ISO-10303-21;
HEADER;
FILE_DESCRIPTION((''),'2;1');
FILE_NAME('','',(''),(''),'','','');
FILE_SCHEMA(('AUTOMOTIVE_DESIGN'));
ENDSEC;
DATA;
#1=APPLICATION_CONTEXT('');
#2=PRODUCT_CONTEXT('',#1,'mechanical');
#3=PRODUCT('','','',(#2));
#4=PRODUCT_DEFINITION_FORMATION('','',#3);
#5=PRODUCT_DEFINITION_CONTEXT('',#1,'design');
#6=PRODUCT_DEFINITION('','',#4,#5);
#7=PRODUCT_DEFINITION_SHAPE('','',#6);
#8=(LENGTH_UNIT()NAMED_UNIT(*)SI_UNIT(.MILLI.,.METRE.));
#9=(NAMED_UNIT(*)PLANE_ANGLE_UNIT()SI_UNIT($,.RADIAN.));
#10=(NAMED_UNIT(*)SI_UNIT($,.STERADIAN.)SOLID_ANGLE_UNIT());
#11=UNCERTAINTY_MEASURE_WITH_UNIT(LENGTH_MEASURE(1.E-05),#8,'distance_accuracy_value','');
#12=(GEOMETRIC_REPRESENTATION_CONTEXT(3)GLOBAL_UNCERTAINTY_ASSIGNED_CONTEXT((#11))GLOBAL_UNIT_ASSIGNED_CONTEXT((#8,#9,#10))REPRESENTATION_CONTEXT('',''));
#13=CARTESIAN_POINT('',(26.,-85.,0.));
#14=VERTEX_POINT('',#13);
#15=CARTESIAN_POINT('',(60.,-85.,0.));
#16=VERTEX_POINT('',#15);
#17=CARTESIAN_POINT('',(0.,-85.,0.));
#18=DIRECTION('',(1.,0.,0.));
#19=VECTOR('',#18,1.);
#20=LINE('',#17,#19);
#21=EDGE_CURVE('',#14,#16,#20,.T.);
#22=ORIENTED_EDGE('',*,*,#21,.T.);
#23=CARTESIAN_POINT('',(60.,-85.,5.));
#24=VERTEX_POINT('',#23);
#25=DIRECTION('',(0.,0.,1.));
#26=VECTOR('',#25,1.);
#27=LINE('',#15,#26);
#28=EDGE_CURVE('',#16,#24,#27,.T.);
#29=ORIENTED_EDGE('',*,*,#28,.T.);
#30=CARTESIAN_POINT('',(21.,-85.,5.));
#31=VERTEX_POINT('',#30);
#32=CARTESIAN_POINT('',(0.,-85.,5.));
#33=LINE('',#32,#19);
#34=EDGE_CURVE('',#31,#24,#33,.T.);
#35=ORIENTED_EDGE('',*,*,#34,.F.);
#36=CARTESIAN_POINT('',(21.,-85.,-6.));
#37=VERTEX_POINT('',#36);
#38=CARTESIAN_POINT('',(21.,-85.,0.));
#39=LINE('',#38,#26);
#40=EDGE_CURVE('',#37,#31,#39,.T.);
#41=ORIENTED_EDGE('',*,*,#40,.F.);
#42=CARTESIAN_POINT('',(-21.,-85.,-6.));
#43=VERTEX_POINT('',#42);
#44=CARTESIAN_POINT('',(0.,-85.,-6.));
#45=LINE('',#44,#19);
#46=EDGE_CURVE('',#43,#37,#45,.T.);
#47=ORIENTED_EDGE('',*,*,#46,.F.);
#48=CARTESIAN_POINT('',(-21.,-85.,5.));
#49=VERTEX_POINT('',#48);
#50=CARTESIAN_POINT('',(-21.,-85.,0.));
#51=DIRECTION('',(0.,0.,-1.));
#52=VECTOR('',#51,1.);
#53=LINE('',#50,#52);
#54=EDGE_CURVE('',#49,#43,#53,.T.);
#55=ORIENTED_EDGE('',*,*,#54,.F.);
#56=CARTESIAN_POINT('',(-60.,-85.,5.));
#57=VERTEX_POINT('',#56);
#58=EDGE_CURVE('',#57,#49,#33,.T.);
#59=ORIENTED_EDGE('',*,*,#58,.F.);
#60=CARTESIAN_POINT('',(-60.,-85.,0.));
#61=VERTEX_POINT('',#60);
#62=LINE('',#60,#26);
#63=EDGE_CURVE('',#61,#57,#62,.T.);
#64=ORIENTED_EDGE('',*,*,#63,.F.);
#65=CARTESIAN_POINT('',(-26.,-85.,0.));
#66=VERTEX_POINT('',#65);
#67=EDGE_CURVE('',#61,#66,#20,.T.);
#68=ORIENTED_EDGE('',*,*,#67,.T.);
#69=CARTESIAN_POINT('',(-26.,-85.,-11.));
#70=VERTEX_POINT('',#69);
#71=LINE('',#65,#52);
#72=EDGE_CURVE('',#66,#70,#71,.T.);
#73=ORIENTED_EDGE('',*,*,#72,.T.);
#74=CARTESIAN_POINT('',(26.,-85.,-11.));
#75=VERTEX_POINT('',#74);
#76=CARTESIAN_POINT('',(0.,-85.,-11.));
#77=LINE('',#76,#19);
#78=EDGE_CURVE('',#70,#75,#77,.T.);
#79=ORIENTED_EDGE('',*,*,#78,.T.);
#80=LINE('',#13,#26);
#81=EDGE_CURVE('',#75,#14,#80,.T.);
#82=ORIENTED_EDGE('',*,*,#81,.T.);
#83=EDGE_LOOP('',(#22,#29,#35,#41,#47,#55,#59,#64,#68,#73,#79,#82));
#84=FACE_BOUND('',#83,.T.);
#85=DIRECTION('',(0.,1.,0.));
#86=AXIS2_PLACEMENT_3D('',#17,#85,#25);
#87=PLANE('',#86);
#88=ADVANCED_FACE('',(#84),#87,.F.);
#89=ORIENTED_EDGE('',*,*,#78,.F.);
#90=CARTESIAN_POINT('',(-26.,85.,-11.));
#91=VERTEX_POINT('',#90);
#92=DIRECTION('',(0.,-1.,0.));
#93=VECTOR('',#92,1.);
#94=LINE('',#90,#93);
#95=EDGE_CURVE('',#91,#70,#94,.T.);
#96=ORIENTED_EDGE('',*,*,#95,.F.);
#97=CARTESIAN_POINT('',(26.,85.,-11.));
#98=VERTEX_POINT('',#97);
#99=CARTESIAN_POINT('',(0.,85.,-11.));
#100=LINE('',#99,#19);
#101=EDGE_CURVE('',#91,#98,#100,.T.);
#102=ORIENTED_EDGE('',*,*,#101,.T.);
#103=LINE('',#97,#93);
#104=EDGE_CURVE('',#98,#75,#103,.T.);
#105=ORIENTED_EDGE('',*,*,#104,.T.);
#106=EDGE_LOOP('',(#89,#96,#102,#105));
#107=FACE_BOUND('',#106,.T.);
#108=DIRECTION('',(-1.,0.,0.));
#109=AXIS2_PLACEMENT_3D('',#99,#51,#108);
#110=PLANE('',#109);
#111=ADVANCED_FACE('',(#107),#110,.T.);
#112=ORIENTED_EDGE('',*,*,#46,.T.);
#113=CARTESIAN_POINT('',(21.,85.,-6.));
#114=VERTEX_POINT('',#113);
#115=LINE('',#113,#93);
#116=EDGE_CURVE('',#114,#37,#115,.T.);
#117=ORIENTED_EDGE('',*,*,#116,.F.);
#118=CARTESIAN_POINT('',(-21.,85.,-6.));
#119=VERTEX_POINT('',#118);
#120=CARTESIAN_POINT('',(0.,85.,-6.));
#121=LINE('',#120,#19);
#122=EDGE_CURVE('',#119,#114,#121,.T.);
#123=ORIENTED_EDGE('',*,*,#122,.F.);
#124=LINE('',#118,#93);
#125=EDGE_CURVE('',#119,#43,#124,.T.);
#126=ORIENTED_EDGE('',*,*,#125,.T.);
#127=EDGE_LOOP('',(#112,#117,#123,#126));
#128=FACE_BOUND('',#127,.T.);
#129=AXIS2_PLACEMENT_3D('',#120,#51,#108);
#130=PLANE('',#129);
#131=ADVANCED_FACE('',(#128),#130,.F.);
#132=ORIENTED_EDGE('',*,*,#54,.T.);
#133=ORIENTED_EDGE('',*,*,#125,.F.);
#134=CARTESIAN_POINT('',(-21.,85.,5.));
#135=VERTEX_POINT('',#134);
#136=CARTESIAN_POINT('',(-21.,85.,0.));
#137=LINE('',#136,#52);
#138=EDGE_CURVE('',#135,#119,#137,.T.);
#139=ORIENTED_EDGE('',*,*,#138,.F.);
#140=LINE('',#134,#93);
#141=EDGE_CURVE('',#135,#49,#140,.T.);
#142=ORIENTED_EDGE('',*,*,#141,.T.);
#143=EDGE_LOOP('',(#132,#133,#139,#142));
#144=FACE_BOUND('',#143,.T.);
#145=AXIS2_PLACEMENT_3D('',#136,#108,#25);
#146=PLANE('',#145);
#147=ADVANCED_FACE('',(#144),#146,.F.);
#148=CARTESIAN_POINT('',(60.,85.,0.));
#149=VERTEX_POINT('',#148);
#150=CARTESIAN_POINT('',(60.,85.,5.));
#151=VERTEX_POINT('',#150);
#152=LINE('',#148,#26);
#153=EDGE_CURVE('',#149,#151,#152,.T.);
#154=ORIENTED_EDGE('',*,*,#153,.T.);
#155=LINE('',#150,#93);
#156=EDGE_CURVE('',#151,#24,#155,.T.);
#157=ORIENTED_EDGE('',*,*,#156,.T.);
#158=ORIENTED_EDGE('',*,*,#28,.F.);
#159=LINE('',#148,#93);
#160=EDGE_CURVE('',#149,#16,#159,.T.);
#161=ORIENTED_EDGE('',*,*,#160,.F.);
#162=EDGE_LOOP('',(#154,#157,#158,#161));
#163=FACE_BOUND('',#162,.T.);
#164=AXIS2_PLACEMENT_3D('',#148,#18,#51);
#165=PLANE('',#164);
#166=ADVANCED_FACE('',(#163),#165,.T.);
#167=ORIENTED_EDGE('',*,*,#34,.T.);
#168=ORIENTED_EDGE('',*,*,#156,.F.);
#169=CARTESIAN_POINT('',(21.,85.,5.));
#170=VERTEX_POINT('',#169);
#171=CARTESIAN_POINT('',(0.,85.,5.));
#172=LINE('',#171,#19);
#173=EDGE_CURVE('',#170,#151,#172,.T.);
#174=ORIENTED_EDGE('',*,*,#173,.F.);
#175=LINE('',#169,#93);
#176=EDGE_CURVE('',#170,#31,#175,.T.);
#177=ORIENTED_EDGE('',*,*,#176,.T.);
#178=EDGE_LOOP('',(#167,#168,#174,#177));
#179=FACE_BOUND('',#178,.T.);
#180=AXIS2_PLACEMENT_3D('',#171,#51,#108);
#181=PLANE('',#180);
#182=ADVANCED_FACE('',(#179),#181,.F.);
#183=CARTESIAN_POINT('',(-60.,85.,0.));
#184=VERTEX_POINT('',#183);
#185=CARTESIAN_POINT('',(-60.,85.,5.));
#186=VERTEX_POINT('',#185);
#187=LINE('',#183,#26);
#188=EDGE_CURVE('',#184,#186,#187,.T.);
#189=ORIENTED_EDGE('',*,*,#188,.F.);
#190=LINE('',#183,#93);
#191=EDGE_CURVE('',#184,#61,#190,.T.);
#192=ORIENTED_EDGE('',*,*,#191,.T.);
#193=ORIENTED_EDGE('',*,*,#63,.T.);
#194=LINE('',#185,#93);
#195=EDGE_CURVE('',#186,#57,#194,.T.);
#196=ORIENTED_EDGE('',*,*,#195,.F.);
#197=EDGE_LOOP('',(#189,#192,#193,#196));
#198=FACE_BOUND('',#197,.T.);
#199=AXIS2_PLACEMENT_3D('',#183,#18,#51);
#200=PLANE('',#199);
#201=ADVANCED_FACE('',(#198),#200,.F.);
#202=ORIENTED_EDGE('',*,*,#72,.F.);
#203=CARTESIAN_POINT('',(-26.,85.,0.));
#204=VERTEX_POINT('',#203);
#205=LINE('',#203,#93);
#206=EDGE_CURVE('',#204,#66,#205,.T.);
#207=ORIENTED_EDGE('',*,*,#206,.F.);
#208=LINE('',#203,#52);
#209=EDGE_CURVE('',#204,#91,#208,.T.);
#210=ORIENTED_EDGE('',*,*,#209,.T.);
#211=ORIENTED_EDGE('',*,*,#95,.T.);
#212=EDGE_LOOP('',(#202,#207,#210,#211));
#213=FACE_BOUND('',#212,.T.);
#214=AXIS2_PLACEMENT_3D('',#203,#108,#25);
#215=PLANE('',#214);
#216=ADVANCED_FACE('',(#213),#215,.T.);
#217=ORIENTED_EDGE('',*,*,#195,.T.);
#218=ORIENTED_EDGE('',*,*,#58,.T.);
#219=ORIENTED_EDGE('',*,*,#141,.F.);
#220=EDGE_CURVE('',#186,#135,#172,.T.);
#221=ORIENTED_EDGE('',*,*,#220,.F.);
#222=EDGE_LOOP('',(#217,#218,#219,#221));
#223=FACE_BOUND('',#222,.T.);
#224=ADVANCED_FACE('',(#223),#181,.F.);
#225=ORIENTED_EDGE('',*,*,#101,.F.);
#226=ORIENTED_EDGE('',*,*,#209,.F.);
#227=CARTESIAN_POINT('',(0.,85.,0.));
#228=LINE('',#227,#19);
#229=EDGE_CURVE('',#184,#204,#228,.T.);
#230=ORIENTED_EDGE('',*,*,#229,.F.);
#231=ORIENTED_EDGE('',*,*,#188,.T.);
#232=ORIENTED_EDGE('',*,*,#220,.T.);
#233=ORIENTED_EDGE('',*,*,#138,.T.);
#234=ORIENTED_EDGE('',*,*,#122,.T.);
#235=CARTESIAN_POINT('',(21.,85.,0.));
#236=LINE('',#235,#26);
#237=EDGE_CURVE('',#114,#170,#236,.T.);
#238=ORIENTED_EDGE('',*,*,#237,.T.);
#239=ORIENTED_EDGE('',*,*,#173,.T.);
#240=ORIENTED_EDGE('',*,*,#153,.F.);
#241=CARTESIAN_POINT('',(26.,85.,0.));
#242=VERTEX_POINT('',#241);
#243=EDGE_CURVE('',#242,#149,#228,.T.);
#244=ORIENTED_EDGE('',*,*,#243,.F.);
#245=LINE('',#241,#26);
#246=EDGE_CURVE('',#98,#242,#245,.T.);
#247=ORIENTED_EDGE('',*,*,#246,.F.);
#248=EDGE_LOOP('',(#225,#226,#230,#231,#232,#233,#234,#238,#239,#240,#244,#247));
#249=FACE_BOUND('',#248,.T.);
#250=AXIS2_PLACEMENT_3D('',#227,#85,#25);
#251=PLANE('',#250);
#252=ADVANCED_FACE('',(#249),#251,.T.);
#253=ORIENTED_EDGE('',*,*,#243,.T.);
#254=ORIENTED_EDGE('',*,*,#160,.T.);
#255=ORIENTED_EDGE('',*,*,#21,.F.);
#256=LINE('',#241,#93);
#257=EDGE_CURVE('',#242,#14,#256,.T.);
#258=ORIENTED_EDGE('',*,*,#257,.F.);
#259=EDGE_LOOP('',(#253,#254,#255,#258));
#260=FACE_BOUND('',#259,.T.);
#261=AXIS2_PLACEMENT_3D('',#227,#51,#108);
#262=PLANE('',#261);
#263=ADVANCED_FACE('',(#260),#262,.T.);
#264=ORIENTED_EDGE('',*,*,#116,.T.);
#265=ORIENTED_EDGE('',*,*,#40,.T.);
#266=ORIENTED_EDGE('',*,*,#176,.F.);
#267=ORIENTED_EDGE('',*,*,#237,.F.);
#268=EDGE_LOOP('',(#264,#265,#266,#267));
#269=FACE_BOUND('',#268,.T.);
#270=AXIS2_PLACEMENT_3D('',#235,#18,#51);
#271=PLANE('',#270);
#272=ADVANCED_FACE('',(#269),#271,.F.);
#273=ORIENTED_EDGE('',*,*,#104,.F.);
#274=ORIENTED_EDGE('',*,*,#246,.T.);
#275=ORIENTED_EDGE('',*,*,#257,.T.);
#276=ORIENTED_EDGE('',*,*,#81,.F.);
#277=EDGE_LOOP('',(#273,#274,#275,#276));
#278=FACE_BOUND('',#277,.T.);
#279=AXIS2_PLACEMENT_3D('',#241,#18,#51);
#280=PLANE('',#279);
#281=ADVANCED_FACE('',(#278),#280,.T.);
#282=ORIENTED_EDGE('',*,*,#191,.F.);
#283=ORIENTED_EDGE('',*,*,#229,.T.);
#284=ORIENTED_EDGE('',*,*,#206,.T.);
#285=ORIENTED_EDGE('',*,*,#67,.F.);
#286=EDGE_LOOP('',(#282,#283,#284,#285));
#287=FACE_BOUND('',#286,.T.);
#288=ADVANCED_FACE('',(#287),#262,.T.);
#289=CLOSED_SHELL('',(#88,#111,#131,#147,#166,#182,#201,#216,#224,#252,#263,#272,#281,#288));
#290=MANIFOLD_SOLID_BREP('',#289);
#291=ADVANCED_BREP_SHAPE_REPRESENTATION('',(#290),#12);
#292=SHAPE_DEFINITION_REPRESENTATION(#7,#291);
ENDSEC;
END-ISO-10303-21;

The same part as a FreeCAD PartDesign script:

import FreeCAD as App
import Part
import Sketcher
Q = App.Units.Quantity


def add_polygon(sketch, points):
    """Adds a closed chain of lines whose ends are joined by coincident constraints."""
    first, n = sketch.GeometryCount, len(points)
    for a, b in zip(points, points[1:] + points[:1]):
        sketch.addGeometry(Part.LineSegment(App.Vector(*a, 0), App.Vector(*b, 0)), False)
    for i in range(n):
        sketch.addConstraint(Sketcher.Constraint("Coincident", first + i, 2, first + (i + 1) % n, 1))

doc = App.newDocument("Part")
body = doc.addObject("PartDesign::Body", "Body")

# Sketch on XZ plane
sketch1 = doc.addObject("Sketcher::SketchObject", "Sketch")
body.addObject(sketch1)
sketch1.AttachmentSupport = (doc.XZ_Plane, [""])
sketch1.MapMode = "FlatFace"
add_polygon(sketch1, [(-60, 5), (-21, 5), (-21, -6), (21, -6), (21, 5), (60, 5), (60, 0), (26, 0), (26, -11), (-26, -11), (-26, 0), (-60, 0)])  # lines 0-11
sketch1.addConstraint([
    Sketcher.Constraint("Horizontal", 0),
    Sketcher.Constraint("Vertical", 1),
    Sketcher.Constraint("Horizontal", 2),
    Sketcher.Constraint("Vertical", 3),
    Sketcher.Constraint("Horizontal", 4),
    Sketcher.Constraint("Vertical", 5),
    Sketcher.Constraint("Horizontal", 6),
    Sketcher.Constraint("Vertical", 7),
    Sketcher.Constraint("Horizontal", 8),
    Sketcher.Constraint("Vertical", 9),
    Sketcher.Constraint("Horizontal", 10),
    Sketcher.Constraint("Vertical", 11),
    Sketcher.Constraint("Symmetric", 6, 2, 9, 2, -1, 1),
    Sketcher.Constraint("Symmetric", 0, 2, 3, 2, -2),
    Sketcher.Constraint("Symmetric", 5, 2, 10, 2, -2),
    Sketcher.Constraint("Equal", 3, 7),
    Sketcher.Constraint("DistanceX", 0, 1, 0, 2, Q("39 mm")),
    Sketcher.Constraint("DistanceX", 2, 1, 2, 2, Q("42 mm")),
    Sketcher.Constraint("DistanceX", 6, 2, 6, 1, Q("34 mm")),
    Sketcher.Constraint("DistanceY", 1, 2, 1, 1, Q("11 mm")),
    Sketcher.Constraint("DistanceY", 5, 2, 5, 1, Q("5 mm")),
])
pad1 = doc.addObject("PartDesign::Pad", "Pad")
body.addObject(pad1)
pad1.Profile = sketch1
pad1.Length = 170
pad1.Midplane = True

doc.recompute()
